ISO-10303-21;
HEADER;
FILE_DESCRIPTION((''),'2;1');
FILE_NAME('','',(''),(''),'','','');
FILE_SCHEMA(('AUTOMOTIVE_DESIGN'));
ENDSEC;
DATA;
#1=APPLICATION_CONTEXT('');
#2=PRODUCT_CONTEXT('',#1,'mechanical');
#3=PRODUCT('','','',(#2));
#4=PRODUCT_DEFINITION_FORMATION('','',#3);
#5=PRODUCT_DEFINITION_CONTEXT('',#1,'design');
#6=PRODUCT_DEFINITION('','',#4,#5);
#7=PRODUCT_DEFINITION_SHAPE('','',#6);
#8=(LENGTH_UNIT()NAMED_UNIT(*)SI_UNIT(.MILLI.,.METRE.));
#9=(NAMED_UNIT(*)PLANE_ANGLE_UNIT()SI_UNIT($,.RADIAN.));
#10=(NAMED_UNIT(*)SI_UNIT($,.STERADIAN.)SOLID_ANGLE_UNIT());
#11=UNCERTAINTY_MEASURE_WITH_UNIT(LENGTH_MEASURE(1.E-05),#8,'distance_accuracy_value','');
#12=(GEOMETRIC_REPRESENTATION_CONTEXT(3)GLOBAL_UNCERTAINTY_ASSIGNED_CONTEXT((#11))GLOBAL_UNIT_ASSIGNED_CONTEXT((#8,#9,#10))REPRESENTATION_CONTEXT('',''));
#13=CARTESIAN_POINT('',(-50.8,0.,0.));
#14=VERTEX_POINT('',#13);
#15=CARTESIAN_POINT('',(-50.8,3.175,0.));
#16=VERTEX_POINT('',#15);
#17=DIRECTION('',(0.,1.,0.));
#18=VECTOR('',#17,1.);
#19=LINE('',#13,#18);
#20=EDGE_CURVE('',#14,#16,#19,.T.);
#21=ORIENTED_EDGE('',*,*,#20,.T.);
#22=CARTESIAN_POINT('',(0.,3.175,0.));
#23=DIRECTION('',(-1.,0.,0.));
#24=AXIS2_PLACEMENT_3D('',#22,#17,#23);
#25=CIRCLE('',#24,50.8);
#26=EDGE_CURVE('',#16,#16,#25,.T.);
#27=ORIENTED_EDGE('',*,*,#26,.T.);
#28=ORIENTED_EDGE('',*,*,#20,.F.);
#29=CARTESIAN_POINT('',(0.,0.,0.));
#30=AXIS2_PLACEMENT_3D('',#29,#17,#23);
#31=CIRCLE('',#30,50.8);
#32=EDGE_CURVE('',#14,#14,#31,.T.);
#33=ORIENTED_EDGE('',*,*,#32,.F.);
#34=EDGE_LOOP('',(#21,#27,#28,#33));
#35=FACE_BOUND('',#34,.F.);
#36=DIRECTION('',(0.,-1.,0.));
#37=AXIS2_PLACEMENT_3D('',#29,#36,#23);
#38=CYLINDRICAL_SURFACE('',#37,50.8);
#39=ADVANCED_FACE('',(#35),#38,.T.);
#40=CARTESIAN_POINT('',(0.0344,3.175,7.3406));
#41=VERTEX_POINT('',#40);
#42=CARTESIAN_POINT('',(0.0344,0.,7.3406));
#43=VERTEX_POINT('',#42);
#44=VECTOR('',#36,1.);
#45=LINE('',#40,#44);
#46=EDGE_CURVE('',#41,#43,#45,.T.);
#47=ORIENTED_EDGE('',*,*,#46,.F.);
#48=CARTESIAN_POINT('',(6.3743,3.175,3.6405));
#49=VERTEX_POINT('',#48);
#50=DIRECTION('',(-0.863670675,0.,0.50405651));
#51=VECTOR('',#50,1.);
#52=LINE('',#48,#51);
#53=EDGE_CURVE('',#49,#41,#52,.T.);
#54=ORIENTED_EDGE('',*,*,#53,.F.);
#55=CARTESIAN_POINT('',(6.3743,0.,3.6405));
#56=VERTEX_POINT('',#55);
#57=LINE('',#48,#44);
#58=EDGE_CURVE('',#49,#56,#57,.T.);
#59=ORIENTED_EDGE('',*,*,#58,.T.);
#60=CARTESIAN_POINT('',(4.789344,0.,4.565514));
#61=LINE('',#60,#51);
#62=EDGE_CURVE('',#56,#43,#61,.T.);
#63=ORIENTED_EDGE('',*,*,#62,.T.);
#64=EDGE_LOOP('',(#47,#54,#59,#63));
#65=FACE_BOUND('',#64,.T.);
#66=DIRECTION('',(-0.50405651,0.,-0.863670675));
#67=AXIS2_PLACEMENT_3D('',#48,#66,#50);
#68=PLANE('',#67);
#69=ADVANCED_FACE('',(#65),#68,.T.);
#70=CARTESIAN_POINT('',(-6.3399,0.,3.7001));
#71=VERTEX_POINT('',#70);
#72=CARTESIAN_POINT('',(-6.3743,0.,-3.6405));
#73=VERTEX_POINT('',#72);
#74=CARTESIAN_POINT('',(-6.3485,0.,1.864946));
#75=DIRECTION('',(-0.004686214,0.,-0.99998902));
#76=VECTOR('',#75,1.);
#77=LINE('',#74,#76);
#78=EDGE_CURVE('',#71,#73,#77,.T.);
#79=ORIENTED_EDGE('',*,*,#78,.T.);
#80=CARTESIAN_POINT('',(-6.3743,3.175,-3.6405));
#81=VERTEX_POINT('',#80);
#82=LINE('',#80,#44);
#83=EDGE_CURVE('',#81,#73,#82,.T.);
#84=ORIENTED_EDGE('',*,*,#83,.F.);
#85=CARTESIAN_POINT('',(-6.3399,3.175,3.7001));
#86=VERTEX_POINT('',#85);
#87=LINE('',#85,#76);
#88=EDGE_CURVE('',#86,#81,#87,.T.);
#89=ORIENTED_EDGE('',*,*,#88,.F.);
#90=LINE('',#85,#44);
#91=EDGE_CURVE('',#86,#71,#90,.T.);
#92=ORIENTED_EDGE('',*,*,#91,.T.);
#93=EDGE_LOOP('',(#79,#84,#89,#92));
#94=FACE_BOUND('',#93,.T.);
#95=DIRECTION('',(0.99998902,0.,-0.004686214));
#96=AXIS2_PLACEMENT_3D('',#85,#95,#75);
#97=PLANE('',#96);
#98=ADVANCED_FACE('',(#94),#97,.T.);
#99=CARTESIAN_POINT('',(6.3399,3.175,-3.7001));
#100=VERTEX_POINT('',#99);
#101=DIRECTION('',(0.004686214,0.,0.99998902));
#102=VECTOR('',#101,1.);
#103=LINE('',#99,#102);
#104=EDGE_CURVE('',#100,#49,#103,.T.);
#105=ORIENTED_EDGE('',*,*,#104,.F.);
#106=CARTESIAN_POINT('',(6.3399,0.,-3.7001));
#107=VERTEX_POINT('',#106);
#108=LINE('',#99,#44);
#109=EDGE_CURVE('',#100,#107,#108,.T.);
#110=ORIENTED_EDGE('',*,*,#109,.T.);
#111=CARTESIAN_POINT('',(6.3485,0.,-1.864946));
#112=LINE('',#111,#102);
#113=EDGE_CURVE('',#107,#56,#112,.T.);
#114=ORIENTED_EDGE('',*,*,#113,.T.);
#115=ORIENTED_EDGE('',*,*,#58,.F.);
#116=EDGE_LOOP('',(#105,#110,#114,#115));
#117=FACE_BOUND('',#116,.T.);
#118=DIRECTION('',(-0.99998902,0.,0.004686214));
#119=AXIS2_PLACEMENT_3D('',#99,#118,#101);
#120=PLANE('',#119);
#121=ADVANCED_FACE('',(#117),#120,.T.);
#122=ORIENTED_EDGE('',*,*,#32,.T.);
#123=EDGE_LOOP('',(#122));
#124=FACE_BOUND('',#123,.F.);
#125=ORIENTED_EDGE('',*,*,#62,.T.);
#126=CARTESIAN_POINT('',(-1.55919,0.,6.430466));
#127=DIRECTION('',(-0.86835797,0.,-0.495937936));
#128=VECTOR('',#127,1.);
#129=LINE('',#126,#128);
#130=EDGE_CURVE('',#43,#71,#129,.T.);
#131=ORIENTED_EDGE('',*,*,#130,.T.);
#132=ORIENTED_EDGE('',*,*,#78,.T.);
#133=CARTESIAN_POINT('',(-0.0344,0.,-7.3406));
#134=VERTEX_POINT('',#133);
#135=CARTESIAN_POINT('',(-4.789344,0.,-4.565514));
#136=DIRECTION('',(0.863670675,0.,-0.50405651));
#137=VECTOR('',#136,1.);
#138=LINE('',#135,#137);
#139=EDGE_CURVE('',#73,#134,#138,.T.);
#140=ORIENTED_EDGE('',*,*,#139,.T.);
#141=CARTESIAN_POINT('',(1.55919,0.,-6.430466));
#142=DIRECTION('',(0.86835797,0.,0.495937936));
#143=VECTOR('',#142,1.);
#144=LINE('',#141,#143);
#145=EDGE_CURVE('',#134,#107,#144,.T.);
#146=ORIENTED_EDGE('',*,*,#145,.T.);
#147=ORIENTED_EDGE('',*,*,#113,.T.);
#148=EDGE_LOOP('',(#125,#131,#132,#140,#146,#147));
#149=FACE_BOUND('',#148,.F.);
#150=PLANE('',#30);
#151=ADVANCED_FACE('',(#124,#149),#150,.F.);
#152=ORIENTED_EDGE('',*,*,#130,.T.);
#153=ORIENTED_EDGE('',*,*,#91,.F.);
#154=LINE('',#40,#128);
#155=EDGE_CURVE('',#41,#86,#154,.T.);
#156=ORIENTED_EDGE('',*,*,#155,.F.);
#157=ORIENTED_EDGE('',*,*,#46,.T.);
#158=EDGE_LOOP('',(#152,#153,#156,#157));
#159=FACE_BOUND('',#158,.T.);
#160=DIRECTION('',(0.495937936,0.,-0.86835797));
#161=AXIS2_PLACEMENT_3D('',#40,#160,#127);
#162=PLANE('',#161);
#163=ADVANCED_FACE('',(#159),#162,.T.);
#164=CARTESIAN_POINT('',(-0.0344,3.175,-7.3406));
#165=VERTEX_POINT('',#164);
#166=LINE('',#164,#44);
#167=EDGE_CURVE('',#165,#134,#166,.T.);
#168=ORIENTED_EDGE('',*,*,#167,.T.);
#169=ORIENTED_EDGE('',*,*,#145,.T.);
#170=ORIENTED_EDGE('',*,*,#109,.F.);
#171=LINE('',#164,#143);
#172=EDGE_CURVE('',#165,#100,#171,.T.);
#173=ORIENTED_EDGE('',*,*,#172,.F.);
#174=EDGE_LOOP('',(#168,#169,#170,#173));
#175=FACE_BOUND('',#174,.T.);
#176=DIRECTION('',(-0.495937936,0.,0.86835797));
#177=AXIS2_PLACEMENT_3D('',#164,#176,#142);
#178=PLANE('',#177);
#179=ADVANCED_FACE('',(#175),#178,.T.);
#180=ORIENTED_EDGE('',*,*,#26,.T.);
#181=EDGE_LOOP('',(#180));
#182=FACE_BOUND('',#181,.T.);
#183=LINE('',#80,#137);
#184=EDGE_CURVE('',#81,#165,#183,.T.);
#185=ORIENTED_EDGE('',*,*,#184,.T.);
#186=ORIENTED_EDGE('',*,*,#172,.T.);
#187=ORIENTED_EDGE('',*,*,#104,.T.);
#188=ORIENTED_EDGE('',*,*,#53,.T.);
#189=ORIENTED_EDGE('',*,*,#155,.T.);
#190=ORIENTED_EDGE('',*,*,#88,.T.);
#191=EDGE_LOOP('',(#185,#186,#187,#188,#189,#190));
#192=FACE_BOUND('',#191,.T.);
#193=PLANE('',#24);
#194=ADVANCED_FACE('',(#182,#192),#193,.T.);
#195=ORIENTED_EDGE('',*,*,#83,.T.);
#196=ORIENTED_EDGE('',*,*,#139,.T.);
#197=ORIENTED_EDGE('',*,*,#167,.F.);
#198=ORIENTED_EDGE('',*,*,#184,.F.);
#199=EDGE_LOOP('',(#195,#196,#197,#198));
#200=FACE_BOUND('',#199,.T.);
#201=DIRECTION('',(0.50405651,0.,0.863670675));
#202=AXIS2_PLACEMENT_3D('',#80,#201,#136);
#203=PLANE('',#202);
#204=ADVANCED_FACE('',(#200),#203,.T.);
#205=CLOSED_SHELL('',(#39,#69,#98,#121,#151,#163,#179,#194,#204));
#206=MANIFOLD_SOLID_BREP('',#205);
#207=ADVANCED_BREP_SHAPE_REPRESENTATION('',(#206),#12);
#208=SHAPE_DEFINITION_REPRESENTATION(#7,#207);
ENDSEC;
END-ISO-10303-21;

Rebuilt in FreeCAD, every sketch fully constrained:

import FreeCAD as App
import Part
import Sketcher
Q = App.Units.Quantity


def add_polygon(sketch, points):
    """Adds a closed chain of lines whose ends are joined by coincident constraints."""
    first, n = sketch.GeometryCount, len(points)
    for a, b in zip(points, points[1:] + points[:1]):
        sketch.addGeometry(Part.LineSegment(App.Vector(*a, 0), App.Vector(*b, 0)), False)
    for i in range(n):
        sketch.addConstraint(Sketcher.Constraint("Coincident", first + i, 2, first + (i + 1) % n, 1))

doc = App.newDocument("Part")
params = doc.addObject("Spreadsheet::Sheet", "Params")
for row, (alias, value) in enumerate([
    ("sketch1_diameter", "4 in"),
    ("pad1_length", "0.125 in"),
    ("sketch2_length", "0.289 in"),
    ("pocket1_length", "1 in"),
], start=1):
    params.set(f"A{row}", alias)
    params.set(f"B{row}", "=" + value)
    params.setAlias(f"B{row}", alias)

body = doc.addObject("PartDesign::Body", "Body")

sketch1 = body.newObject("Sketcher::SketchObject", "Sketch")
sketch1.AttachmentSupport = (doc.getObject("XZ_Plane"), [""])
sketch1.MapMode = "FlatFace"
sketch1.addGeometry(Part.Circle(App.Vector(0, 0, 0), App.Vector(0, 0, 1), 51), False)
sketch1.addConstraint(Sketcher.Constraint("Coincident", 0, 3, -1, 1))
sketch1.addConstraint(Sketcher.Constraint("Diameter", 0, Q("4 in")))
sketch1.setExpression("Constraints[1]", "Params.sketch1_diameter")
pad1 = body.newObject("PartDesign::Pad", "Pad")
pad1.Profile = sketch1
pad1.setExpression("Length", "Params.pad1_length")
pad1.Reversed = True

sketch2 = body.newObject("Sketcher::SketchObject", "Sketch001")
sketch2.AttachmentSupport = (doc.getObject("XZ_Plane"), [""])
sketch2.MapMode = "FlatFace"
sketch2.AttachmentOffset = App.Placement(App.Vector(0, 0, -0.125 * 25.4), App.Rotation())
add_polygon(sketch2, [(6, 4), (6, -4), (0, -7), (-6, -4), (-6, 4), (0, 7)])
sketch2.addConstraint(Sketcher.Constraint("Symmetric", 0, 2, 3, 2, -1, 1))
sketch2.addConstraint(Sketcher.Constraint("Symmetric", 1, 2, 4, 2, -1, 1))
sketch2.addConstraint(Sketcher.Constraint("Symmetric", 2, 2, 5, 2, -1, 1))
sketch2.addConstraint(Sketcher.Constraint("Equal", 0, 1))
sketch2.addConstraint(Sketcher.Constraint("Equal", 1, 2))
sketch2.addConstraint(Sketcher.Constraint("Distance", 0, Q("0.289 in")))
sketch2.addConstraint(Sketcher.Constraint("DistanceY", 1, 2, -1, 1, Q("0.289 in")))
sketch2.addConstraint(Sketcher.Constraint("DistanceX", -1, 1, 0, 2, Q("0.2496 in")))
sketch2.addConstraint(Sketcher.Constraint("DistanceX", 2, 2, 1, 2, Q("0.2496 in")))
sketch2.setExpression("Constraints[11]", "Params.sketch2_length")
pocket1 = body.newObject("PartDesign::Pocket", "Pocket")
pocket1.Profile = sketch2
pocket1.setExpression("Length", "Params.pocket1_length")
pocket1.Reversed = True

doc.recompute()
